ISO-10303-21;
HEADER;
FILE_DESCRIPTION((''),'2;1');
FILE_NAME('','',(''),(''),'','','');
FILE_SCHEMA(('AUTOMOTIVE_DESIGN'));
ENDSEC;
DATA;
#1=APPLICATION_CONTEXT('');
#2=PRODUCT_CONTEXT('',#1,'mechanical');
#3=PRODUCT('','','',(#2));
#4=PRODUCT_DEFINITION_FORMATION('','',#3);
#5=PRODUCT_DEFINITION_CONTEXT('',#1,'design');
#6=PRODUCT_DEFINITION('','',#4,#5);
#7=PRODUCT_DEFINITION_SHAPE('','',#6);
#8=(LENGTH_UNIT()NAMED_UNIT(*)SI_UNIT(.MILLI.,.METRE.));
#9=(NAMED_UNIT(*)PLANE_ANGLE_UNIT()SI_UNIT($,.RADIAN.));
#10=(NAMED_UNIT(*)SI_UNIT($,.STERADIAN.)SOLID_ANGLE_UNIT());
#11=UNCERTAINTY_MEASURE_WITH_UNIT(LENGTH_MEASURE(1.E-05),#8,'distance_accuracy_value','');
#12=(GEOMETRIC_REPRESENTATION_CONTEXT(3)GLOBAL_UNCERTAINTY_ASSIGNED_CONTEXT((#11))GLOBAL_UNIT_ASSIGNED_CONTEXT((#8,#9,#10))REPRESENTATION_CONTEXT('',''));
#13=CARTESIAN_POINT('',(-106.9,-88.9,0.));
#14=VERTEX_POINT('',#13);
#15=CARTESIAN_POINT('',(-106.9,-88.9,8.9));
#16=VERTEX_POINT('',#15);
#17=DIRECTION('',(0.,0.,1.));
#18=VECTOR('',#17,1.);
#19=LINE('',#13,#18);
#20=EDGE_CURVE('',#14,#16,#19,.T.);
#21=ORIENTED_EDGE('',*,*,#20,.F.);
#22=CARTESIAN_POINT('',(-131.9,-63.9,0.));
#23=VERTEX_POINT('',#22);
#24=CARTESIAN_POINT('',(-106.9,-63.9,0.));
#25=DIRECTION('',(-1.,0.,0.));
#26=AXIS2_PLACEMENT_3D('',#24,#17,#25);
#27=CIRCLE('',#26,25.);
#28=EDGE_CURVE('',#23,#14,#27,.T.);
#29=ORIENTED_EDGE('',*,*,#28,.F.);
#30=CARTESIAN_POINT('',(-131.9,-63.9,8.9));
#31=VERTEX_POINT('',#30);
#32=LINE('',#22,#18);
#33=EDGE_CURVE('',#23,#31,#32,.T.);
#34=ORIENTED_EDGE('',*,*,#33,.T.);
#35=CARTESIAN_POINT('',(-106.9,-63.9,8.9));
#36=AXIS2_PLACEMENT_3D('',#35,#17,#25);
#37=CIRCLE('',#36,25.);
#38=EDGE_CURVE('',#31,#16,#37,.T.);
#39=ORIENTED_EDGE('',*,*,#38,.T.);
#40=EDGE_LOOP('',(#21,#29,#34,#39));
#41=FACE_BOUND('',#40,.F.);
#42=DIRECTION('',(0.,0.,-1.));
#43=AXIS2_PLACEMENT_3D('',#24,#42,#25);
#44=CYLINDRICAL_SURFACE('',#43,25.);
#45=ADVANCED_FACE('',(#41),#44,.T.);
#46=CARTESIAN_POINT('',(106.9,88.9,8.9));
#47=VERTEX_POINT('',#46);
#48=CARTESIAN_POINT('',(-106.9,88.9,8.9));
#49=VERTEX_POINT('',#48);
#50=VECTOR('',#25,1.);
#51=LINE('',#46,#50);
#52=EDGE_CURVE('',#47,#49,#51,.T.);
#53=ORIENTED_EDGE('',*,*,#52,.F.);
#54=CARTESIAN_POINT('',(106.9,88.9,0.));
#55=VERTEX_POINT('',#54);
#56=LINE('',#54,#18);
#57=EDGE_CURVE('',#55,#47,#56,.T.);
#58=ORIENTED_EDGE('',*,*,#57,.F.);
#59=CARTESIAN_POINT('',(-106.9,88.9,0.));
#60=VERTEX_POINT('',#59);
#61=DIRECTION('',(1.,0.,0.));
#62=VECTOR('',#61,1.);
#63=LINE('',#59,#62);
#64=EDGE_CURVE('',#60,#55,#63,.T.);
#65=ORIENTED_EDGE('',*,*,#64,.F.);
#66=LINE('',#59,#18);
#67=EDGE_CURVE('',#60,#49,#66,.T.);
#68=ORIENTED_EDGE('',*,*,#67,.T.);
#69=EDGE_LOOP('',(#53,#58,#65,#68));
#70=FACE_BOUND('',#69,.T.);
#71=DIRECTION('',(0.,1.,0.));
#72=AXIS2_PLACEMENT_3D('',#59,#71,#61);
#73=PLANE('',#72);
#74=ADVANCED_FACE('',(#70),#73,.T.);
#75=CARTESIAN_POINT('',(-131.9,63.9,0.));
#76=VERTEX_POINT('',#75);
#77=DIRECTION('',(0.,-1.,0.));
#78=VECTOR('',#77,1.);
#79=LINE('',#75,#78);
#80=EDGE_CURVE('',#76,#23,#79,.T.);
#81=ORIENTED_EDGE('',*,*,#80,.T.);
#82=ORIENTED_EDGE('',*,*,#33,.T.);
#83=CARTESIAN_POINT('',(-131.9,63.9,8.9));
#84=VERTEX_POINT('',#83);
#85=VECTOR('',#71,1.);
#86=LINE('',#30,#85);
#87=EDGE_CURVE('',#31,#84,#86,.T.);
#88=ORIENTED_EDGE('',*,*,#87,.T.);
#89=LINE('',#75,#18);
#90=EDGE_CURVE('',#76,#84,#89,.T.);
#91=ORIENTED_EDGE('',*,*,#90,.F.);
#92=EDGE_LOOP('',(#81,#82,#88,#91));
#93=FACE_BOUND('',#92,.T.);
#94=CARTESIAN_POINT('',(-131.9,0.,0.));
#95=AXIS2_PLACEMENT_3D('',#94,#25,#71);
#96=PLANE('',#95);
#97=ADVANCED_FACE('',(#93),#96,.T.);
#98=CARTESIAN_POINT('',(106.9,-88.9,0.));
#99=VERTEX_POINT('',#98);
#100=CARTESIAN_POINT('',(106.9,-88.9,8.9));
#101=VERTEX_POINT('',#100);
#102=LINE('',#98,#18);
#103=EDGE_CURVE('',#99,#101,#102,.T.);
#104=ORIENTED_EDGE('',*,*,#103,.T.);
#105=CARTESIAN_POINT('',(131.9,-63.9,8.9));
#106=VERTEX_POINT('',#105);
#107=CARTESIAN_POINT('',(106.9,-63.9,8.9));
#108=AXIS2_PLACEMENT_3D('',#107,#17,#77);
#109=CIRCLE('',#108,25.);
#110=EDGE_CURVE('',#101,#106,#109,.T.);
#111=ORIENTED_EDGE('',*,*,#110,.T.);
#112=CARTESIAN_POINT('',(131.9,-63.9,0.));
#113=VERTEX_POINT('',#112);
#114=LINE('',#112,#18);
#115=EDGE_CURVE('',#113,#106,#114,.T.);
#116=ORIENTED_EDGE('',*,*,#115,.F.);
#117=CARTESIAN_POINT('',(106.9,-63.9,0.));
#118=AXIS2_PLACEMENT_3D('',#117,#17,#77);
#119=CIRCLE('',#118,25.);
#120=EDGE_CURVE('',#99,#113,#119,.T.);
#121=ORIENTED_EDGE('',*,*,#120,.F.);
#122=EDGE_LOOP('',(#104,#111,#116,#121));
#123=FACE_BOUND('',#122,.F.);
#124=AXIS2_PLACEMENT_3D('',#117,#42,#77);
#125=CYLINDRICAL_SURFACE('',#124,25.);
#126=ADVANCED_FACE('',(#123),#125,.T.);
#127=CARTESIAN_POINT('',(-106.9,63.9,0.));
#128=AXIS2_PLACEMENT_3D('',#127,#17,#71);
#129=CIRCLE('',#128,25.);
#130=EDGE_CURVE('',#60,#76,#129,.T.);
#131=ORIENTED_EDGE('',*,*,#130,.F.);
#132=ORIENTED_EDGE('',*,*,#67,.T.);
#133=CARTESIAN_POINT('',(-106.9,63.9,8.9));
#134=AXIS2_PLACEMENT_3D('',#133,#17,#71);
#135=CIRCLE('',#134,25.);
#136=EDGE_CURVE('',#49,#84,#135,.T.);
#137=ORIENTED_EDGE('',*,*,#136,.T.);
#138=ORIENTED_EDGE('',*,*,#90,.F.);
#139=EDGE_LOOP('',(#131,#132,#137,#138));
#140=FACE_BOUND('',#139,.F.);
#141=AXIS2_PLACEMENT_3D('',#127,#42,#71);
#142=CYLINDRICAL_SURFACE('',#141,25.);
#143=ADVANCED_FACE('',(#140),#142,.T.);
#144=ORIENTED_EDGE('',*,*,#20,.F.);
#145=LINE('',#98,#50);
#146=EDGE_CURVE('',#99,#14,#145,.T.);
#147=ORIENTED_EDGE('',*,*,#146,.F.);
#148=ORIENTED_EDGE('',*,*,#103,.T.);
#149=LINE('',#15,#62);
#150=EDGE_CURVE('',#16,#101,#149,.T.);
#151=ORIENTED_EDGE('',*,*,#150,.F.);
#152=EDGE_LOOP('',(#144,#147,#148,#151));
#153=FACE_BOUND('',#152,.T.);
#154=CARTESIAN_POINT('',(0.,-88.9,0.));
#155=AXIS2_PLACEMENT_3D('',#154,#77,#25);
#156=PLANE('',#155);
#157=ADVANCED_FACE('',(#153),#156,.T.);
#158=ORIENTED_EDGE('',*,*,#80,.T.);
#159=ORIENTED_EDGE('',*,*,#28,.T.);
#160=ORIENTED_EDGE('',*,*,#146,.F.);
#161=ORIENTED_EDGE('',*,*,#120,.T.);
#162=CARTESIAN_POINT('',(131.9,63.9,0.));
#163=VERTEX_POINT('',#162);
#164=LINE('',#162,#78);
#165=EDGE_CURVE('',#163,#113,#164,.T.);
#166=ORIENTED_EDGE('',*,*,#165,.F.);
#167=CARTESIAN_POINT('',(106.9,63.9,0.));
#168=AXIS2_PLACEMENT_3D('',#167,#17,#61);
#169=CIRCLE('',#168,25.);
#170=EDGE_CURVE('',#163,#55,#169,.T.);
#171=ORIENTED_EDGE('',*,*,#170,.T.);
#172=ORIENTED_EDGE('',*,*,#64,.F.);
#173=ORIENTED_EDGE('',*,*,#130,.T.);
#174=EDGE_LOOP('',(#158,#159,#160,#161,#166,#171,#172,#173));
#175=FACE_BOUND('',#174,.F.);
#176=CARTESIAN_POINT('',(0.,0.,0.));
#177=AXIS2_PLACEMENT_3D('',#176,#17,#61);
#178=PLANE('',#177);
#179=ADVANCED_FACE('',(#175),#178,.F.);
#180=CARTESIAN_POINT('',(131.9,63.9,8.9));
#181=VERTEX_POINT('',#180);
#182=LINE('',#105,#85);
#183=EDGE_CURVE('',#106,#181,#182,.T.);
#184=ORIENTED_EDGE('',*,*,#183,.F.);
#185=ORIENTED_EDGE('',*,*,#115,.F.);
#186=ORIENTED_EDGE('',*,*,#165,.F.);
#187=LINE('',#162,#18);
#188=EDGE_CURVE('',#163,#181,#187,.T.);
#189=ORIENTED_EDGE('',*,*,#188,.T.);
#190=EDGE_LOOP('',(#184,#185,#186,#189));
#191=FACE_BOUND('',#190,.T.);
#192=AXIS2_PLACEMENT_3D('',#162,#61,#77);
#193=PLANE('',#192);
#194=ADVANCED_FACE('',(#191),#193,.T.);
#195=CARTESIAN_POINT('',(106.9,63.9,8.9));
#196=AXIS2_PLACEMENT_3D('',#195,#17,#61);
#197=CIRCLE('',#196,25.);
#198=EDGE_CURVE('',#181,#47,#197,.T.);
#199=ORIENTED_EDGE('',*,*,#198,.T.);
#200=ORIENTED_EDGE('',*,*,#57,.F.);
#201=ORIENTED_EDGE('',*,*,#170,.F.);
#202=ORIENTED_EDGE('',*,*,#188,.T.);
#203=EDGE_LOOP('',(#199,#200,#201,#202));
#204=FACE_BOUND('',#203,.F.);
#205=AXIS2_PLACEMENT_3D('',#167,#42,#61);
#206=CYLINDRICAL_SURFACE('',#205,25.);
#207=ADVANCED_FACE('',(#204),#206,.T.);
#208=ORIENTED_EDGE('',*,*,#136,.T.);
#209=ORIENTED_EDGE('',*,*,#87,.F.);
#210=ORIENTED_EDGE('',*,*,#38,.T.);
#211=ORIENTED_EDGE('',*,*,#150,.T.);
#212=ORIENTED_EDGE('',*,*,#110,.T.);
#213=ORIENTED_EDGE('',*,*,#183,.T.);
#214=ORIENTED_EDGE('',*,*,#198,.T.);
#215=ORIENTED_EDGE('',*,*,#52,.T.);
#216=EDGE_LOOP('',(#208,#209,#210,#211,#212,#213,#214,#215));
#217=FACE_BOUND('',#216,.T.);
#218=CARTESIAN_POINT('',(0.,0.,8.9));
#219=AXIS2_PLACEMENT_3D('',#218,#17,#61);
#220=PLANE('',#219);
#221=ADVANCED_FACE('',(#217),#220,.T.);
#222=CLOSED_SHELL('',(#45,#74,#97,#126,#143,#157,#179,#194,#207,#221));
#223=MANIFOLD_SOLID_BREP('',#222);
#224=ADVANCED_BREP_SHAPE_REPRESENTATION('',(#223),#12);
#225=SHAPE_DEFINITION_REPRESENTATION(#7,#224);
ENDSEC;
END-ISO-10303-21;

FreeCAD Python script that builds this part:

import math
import FreeCAD as App
import Part
import Sketcher
from FreeCAD import Vector

doc = App.newDocument("Part")
body = doc.addObject("PartDesign::Body", "Body")

sketch1 = body.newObject("Sketcher::SketchObject", "Sketch")
sketch1.AttachmentSupport = (doc.getObject("XY_Plane"), [""])
sketch1.MapMode = "FlatFace"
sketch1.addGeometry([
    Part.LineSegment(Vector(-131.9, 63.9, 0), Vector(-131.9, -63.9, 0)),
    Part.ArcOfCircle(Part.Circle(Vector(-106.9, -63.9, 0), Vector(0, 0, 1), 25), math.radians(180), math.radians(270)),
    Part.LineSegment(Vector(-106.9, -88.9, 0), Vector(106.9, -88.9, 0)),
    Part.ArcOfCircle(Part.Circle(Vector(106.9, -63.9, 0), Vector(0, 0, 1), 25), math.radians(-90), math.radians(0)),
    Part.LineSegment(Vector(131.9, -63.9, 0), Vector(131.9, 63.9, 0)),
    Part.ArcOfCircle(Part.Circle(Vector(106.9, 63.9, 0), Vector(0, 0, 1), 25), math.radians(0), math.radians(90)),
    Part.LineSegment(Vector(106.9, 88.9, 0), Vector(-106.9, 88.9, 0)),
    Part.ArcOfCircle(Part.Circle(Vector(-106.9, 63.9, 0), Vector(0, 0, 1), 25), math.radians(90), math.radians(180)),
], False)
sketch1.addConstraint([
    Sketcher.Constraint("Tangent", 0, 2, 1, 1),
    Sketcher.Constraint("Tangent", 1, 2, 2, 1),
    Sketcher.Constraint("Tangent", 2, 2, 3, 1),
    Sketcher.Constraint("Tangent", 3, 2, 4, 1),
    Sketcher.Constraint("Tangent", 4, 2, 5, 1),
    Sketcher.Constraint("Tangent", 5, 2, 6, 1),
    Sketcher.Constraint("Tangent", 6, 2, 7, 1),
    Sketcher.Constraint("Tangent", 7, 2, 0, 1),
    Sketcher.Constraint("Vertical", 0),
    Sketcher.Constraint("Horizontal", 2),
    Sketcher.Constraint("Vertical", 4),
    Sketcher.Constraint("Horizontal", 6),
    Sketcher.Constraint("Equal", 1, 3),
    Sketcher.Constraint("Equal", 3, 5),
    Sketcher.Constraint("Equal", 5, 7),
    Sketcher.Constraint("Symmetric", 1, 3, 5, 3, -1, 1),
    Sketcher.Constraint("Radius", 1, 25.0),
    Sketcher.Constraint("DistanceY", 2, 2, 5, 2, 177.8),
    Sketcher.Constraint("DistanceX", 2, 1, 2, 2, 213.8),
])
pad1 = body.newObject("PartDesign::Pad", "Pad")
pad1.Profile = sketch1
pad1.Length = 8.9

doc.recompute()
